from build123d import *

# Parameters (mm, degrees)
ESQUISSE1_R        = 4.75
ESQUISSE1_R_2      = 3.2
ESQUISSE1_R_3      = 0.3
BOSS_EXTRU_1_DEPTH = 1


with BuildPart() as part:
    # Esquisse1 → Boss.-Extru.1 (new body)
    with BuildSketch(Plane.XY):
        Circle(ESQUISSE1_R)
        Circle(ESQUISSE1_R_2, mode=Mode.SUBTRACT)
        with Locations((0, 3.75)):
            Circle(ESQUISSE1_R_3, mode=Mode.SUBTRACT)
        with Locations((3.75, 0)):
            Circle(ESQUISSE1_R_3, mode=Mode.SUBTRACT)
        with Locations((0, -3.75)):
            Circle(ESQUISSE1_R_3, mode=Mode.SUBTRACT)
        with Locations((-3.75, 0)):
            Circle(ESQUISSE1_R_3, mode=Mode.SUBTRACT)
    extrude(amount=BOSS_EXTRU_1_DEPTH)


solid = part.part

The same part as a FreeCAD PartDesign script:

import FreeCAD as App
import Part
import Sketcher

doc = App.newDocument("Part")
body = doc.addObject("PartDesign::Body", "Body")

sketch1 = body.newObject("Sketcher::SketchObject", "Sketch")
sketch1.AttachmentSupport = (doc.getObject("XY_Plane"), [""])
sketch1.MapMode = "FlatFace"
sketch1.addGeometry([
    Part.Circle(App.Vector(0, 0, 0), App.Vector(0, 0, 1), 4.75),
    Part.Circle(App.Vector(0, -3.75, 0), App.Vector(0, 0, 1), 0.3),
    Part.Circle(App.Vector(-3.75, 0, 0), App.Vector(0, 0, 1), 0.3),
    Part.Circle(App.Vector(0, 0, 0), App.Vector(0, 0, 1), 3.2),
    Part.Circle(App.Vector(0, 3.75, 0), App.Vector(0, 0, 1), 0.3),
    Part.Circle(App.Vector(3.75, 0, 0), App.Vector(0, 0, 1), 0.3),
], False)
sketch1.addConstraint([
    Sketcher.Constraint("Coincident", 0, 3, -1, 1),
    Sketcher.Constraint("Coincident", 3, 3, -1, 1),
    Sketcher.Constraint("Equal", 1, 2),
    Sketcher.Constraint("Equal", 2, 4),
    Sketcher.Constraint("Equal", 4, 5),
    Sketcher.Constraint("Symmetric", 1, 3, 4, 3, -1, 1),
    Sketcher.Constraint("Symmetric", 2, 3, 5, 3, -1, 1),
    Sketcher.Constraint("PointOnObject", 1, 3, -2),
    Sketcher.Constraint("PointOnObject", 2, 3, -1),
    Sketcher.Constraint("Diameter", 0, 9.5),
    Sketcher.Constraint("Diameter", 1, 0.6),
    Sketcher.Constraint("Diameter", 3, 6.4),
    Sketcher.Constraint("DistanceY", 1, 3, 4, 3, 7.5),
    Sketcher.Constraint("DistanceX", 2, 3, 5, 3, 7.5),
])
pad1 = body.newObject("PartDesign::Pad", "Pad")
pad1.Profile = sketch1
pad1.Length = 1

doc.recompute()
